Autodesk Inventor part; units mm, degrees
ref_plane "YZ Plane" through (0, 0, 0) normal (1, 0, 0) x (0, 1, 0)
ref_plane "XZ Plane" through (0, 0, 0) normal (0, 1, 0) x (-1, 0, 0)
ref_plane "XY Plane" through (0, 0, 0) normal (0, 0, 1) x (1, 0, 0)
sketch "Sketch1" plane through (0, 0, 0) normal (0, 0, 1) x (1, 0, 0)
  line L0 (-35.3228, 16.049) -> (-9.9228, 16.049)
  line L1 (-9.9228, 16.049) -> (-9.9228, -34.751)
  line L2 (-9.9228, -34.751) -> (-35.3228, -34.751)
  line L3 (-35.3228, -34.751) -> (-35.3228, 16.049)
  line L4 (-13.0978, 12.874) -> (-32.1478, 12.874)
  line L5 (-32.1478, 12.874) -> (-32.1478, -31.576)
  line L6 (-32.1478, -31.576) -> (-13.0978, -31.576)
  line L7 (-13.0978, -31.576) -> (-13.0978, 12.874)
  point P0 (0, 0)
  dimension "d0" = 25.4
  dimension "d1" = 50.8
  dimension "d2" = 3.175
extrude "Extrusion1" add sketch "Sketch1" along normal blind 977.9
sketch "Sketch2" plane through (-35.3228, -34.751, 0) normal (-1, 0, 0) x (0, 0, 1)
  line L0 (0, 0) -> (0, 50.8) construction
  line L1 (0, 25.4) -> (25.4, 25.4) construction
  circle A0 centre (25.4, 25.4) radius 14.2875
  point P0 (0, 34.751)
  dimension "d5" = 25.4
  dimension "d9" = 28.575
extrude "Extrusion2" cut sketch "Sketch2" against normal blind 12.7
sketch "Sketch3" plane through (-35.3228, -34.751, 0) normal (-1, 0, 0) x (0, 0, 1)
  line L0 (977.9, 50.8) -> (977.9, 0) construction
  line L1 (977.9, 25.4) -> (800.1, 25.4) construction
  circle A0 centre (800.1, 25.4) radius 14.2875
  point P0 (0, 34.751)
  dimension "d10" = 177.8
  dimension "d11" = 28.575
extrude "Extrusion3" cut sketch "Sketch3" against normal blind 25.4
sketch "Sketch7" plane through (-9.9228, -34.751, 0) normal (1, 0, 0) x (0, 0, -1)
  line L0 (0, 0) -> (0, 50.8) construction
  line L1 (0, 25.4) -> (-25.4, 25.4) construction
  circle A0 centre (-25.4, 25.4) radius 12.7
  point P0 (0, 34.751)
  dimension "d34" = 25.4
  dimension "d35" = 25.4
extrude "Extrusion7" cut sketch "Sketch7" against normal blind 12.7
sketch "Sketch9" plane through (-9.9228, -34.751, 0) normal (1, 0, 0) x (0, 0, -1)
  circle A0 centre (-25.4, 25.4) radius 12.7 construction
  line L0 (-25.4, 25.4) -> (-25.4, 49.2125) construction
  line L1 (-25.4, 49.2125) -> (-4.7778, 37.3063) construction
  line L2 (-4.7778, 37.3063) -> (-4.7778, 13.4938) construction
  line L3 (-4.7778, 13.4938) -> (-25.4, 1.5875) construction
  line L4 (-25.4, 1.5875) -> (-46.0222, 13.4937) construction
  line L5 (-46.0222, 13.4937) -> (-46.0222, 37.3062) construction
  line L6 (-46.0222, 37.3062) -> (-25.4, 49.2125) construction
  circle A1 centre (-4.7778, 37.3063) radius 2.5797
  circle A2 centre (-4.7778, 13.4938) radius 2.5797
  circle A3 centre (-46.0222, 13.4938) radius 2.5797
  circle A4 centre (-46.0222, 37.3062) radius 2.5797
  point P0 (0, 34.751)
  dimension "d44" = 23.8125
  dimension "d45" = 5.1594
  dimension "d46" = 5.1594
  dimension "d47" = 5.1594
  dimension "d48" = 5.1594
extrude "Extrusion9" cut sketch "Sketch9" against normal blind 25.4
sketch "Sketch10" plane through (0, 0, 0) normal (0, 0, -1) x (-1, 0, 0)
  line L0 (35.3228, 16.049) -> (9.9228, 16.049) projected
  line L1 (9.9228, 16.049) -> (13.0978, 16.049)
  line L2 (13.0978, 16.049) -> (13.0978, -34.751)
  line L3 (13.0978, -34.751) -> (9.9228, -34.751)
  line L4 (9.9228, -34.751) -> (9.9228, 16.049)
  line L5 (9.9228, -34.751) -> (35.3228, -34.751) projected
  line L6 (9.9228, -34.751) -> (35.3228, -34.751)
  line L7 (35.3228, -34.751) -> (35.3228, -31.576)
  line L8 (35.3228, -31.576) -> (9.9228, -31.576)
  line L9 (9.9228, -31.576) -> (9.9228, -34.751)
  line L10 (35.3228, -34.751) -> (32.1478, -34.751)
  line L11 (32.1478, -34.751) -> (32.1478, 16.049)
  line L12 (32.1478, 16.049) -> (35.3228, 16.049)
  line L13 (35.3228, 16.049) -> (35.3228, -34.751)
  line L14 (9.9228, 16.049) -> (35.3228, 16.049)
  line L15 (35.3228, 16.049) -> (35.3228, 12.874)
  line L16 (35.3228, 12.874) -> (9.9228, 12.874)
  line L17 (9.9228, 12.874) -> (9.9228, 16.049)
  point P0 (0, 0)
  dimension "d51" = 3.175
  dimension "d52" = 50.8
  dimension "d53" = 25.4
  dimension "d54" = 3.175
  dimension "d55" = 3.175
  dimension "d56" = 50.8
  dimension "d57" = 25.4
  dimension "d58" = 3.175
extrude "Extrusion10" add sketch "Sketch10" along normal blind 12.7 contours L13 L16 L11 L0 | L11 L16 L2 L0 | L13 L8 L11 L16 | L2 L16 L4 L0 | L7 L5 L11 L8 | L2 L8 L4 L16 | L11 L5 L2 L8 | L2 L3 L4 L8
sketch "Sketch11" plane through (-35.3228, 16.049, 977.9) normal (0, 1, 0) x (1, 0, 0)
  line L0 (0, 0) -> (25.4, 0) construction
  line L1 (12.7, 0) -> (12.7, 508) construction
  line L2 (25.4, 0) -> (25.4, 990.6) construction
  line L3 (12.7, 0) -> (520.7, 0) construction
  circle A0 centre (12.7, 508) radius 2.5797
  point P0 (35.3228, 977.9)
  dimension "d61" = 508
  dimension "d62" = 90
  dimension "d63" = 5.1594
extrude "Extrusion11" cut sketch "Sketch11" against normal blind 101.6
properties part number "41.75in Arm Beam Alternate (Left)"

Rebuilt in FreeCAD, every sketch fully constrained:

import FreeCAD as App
import Part
import Sketcher

V = App.Vector
Q = App.Units.Quantity


def add_polygon(sketch, points):
    """Adds a closed chain of lines whose ends are joined by coincident constraints."""
    first, n = sketch.GeometryCount, len(points)
    for a, b in zip(points, points[1:] + points[:1]):
        sketch.addGeometry(Part.LineSegment(App.Vector(*a, 0), App.Vector(*b, 0)), False)
    for i in range(n):
        sketch.addConstraint(Sketcher.Constraint("Coincident", first + i, 2, first + (i + 1) % n, 1))

doc = App.newDocument("Part")
body = doc.addObject("PartDesign::Body", "Body")

# Sketch on XY plane
sketch1 = body.newObject("Sketcher::SketchObject", "Sketch")
sketch1.AttachmentSupport = (doc.getObject("XY_Plane"), [""])
sketch1.MapMode = "FlatFace"
add_polygon(sketch1, [(-10, 16), (-35, 16), (-35, -35), (-10, -35)])  # lines 0-3
add_polygon(sketch1, [(-32, 13), (-13, 13), (-13, -32), (-32, -32)])  # lines 4-7
sketch1.addConstraint([
    Sketcher.Constraint("Horizontal", 0),
    Sketcher.Constraint("Vertical", 1),
    Sketcher.Constraint("Horizontal", 2),
    Sketcher.Constraint("Vertical", 3),
    Sketcher.Constraint("Horizontal", 4),
    Sketcher.Constraint("Vertical", 5),
    Sketcher.Constraint("Horizontal", 6),
    Sketcher.Constraint("Vertical", 7),
    Sketcher.Constraint("DistanceX", 0, 2, 0, 1, Q("1 in")),
    Sketcher.Constraint("DistanceY", 1, 2, 1, 1, Q("2 in")),
    Sketcher.Constraint("DistanceX", 4, 2, 3, 2, Q("0.125 in")),
    Sketcher.Constraint("DistanceY", 4, 2, 3, 2, Q("0.125 in")),
    Sketcher.Constraint("DistanceY", 2, 2, 5, 2, Q("0.125 in")),
    Sketcher.Constraint("DistanceX", 1, 2, 6, 2, Q("0.125 in")),
    Sketcher.Constraint("DistanceX", 0, 2, -1, 1, Q("35.3228 mm")),
    Sketcher.Constraint("DistanceY", -1, 1, 0, 2, Q("16.049 mm")),
])
pad1 = body.newObject("PartDesign::Pad", "Pad")
pad1.Profile = sketch1
pad1.Length = Q("38.5 in")

# Sketch on YZ plane
sketch2 = body.newObject("Sketcher::SketchObject", "Sketch001")
sketch2.AttachmentSupport = (doc.getObject("YZ_Plane"), [""])
sketch2.MapMode = "FlatFace"
sketch2.AttachmentOffset = App.Placement(V(0, 0, -35.3228), App.Rotation())
sketch2.addGeometry(Part.Circle(V(-9, 25, 0), V(0, 0, 1), 14), False)
sketch2.addConstraint([
    Sketcher.Constraint("Diameter", 0, Q("1.125 in")),
    Sketcher.Constraint("DistanceY", -1, 1, 0, 3, Q("1 in")),
    Sketcher.Constraint("DistanceX", 0, 3, -1, 1, Q("9.351 mm")),
])
pocket1 = body.newObject("PartDesign::Pocket", "Pocket")
pocket1.Profile = sketch2
pocket1.Length = Q("0.5 in")
pocket1.Reversed = True

# Sketch on YZ plane
sketch3 = body.newObject("Sketcher::SketchObject", "Sketch002")
sketch3.AttachmentSupport = (doc.getObject("YZ_Plane"), [""])
sketch3.MapMode = "FlatFace"
sketch3.AttachmentOffset = App.Placement(V(0, 0, -35.3228), App.Rotation())
sketch3.addGeometry(Part.Circle(V(-9, 800, 0), V(0, 0, 1), 14), False)
sketch3.addConstraint([
    Sketcher.Constraint("Diameter", 0, Q("1.125 in")),
    Sketcher.Constraint("DistanceY", -1, 1, 0, 3, Q("31.5 in")),
    Sketcher.Constraint("DistanceX", 0, 3, -1, 1, Q("9.351 mm")),
])
pocket2 = body.newObject("PartDesign::Pocket", "Pocket001")
pocket2.Profile = sketch3
pocket2.Length = Q("1 in")
pocket2.Reversed = True

# Sketch on YZ plane
sketch4 = body.newObject("Sketcher::SketchObject", "Sketch003")
sketch4.AttachmentSupport = (doc.getObject("YZ_Plane"), [""])
sketch4.MapMode = "FlatFace"
sketch4.AttachmentOffset = App.Placement(V(0, 0, -9.9228), App.Rotation())
sketch4.addGeometry(Part.Circle(V(-9, 25, 0), V(0, 0, 1), 13), False)
sketch4.addConstraint([
    Sketcher.Constraint("Diameter", 0, Q("1 in")),
    Sketcher.Constraint("DistanceY", -1, 1, 0, 3, Q("1 in")),
    Sketcher.Constraint("DistanceX", 0, 3, -1, 1, Q("9.351 mm")),
])
pocket3 = body.newObject("PartDesign::Pocket", "Pocket002")
pocket3.Profile = sketch4
pocket3.Length = Q("0.5 in")

# Sketch on YZ plane
sketch5 = body.newObject("Sketcher::SketchObject", "Sketch004")
sketch5.AttachmentSupport = (doc.getObject("YZ_Plane"), [""])
sketch5.MapMode = "FlatFace"
sketch5.AttachmentOffset = App.Placement(V(0, 0, -9.9228), App.Rotation())
sketch5.addGeometry([
    Part.Circle(V(2.6, 4.8, 0), V(0, 0, 1), 2.6),
    Part.Circle(V(-21.3, 4.8, 0), V(0, 0, 1), 2.6),
    Part.Circle(V(-21.3, 46, 0), V(0, 0, 1), 2.6),
    Part.Circle(V(2.6, 46, 0), V(0, 0, 1), 2.6),
], False)
sketch5.addConstraint([
    Sketcher.Constraint("Equal", 0, 1),
    Sketcher.Constraint("Equal", 1, 2),
    Sketcher.Constraint("Equal", 2, 3),
    Sketcher.Constraint("Horizontal", 0, 3, 1, 3),
    Sketcher.Constraint("Horizontal", 2, 3, 3, 3),
    Sketcher.Constraint("Vertical", 1, 3, 2, 3),
    Sketcher.Constraint("Vertical", 0, 3, 3, 3),
    Sketcher.Constraint("Diameter", 0, Q("0.203126 in")),
    Sketcher.Constraint("DistanceX", 1, 3, 0, 3, Q("0.9375 in")),
    Sketcher.Constraint("DistanceX", -1, 1, 0, 3, Q("0.1006 in")),
    Sketcher.Constraint("DistanceY", -1, 1, 0, 3, Q("0.1881 in")),
    Sketcher.Constraint("DistanceY", -1, 1, 2, 3, Q("1.8119 in")),
])
pocket4 = body.newObject("PartDesign::Pocket", "Pocket003")
pocket4.Profile = sketch5
pocket4.Length = Q("1 in")

# Sketch on XY plane
sketch6 = body.newObject("Sketcher::SketchObject", "Sketch005")
sketch6.AttachmentSupport = (doc.getObject("XY_Plane"), [""])
sketch6.MapMode = "FlatFace"
add_polygon(sketch6, [(-35, 16), (-10, 16), (-10, -35), (-35, -35)])  # lines 0-3
add_polygon(sketch6, [(-32, 13), (-32, -32), (-13, -32), (-13, 13)])  # lines 4-7
sketch6.addConstraint([
    Sketcher.Constraint("Horizontal", 0),
    Sketcher.Constraint("Vertical", 1),
    Sketcher.Constraint("Horizontal", 2),
    Sketcher.Constraint("Vertical", 3),
    Sketcher.Constraint("Vertical", 4),
    Sketcher.Constraint("Horizontal", 5),
    Sketcher.Constraint("Vertical", 6),
    Sketcher.Constraint("Horizontal", 7),
    Sketcher.Constraint("DistanceX", 0, 1, 0, 2, Q("1 in")),
    Sketcher.Constraint("DistanceY", 1, 2, 1, 1, Q("2 in")),
    Sketcher.Constraint("DistanceX", 2, 2, 4, 2, Q("0.125 in")),
    Sketcher.Constraint("DistanceY", 2, 2, 4, 2, Q("0.125 in")),
    Sketcher.Constraint("DistanceX", 5, 2, 1, 2, Q("0.125 in")),
    Sketcher.Constraint("DistanceY", 6, 2, 0, 2, Q("0.125 in")),
    Sketcher.Constraint("DistanceX", 0, 2, -1, 1, Q("9.9228 mm")),
    Sketcher.Constraint("DistanceY", -1, 1, 0, 2, Q("16.049 mm")),
])
pad2 = body.newObject("PartDesign::Pad", "Pad001")
pad2.Profile = sketch6
pad2.Length = Q("0.5 in")
pad2.Reversed = True

# Sketch on XZ plane
sketch7 = body.newObject("Sketcher::SketchObject", "Sketch006")
sketch7.AttachmentSupport = (doc.getObject("XZ_Plane"), [""])
sketch7.MapMode = "FlatFace"
sketch7.AttachmentOffset = App.Placement(V(0, 0, -16.049), App.Rotation())
sketch7.addGeometry(Part.Circle(V(-22.6, 469.9, 0), V(0, 0, 1), 2.6), False)
sketch7.addConstraint([
    Sketcher.Constraint("Diameter", 0, Q("0.203126 in")),
    Sketcher.Constraint("DistanceY", -1, 1, 0, 3, Q("18.5 in")),
    Sketcher.Constraint("DistanceX", 0, 3, -1, 1, Q("22.6228 mm")),
])
pocket5 = body.newObject("PartDesign::Pocket", "Pocket004")
pocket5.Profile = sketch7
pocket5.Length = Q("4 in")
pocket5.Reversed = True

doc.recompute()
